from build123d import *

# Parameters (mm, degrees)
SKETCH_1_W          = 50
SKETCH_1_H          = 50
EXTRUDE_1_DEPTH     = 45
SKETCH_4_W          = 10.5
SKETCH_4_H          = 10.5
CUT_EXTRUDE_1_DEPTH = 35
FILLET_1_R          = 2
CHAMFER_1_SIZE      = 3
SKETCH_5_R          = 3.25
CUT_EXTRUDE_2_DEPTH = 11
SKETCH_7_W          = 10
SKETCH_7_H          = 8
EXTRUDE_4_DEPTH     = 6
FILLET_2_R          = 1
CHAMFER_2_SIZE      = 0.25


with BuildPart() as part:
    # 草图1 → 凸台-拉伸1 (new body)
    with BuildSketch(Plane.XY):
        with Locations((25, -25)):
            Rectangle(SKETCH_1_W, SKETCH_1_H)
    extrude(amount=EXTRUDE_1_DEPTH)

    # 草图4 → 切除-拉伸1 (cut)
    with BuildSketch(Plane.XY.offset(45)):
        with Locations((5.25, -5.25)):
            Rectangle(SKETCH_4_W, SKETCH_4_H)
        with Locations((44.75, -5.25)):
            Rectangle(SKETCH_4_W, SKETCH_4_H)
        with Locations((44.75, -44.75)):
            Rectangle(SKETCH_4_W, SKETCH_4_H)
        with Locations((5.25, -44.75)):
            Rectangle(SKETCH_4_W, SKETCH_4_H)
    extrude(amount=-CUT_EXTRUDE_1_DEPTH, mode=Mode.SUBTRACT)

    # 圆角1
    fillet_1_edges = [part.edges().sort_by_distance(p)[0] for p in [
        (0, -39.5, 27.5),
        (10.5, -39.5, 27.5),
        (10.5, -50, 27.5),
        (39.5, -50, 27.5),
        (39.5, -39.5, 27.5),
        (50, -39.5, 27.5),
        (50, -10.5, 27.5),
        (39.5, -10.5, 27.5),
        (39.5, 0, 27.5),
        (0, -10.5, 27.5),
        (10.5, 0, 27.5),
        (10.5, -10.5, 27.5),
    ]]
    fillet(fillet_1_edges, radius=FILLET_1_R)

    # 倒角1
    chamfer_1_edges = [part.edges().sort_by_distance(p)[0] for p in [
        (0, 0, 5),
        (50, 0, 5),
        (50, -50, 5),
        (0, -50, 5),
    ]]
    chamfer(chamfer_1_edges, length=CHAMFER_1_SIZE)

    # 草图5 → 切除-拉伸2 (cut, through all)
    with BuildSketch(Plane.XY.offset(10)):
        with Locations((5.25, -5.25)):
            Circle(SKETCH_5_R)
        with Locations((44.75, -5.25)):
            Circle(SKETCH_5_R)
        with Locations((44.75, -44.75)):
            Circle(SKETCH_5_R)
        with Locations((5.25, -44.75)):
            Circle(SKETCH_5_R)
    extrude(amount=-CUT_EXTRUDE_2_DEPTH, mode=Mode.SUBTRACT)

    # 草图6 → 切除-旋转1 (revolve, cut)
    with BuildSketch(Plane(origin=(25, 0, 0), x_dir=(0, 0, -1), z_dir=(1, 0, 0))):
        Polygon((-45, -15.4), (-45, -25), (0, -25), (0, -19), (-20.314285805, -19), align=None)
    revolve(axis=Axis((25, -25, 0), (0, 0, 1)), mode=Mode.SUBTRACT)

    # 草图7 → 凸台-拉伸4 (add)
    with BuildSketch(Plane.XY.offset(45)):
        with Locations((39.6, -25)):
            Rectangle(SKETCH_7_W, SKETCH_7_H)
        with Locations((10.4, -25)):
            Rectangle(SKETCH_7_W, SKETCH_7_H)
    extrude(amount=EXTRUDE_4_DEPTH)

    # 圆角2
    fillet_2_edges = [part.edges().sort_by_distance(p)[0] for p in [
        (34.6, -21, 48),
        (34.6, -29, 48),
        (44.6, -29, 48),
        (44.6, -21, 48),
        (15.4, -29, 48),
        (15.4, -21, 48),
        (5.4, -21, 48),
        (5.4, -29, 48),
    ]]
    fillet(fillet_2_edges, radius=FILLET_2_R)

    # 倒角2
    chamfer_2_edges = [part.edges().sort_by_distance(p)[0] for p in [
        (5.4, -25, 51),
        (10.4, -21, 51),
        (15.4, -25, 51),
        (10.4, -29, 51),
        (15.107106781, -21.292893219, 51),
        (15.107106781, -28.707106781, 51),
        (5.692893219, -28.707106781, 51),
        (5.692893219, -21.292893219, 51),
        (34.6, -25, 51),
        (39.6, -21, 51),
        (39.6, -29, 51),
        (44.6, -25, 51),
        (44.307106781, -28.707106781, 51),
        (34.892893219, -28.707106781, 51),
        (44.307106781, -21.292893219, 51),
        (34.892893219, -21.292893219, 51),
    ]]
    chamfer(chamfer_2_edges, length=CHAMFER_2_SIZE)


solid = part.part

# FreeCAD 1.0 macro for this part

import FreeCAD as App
import Part
import Sketcher
from FreeCAD import Vector


def edges_at(feature, points):
    """Names of the edges that pass closest to the given points."""
    edges = feature.Shape.Edges
    near = lambda p: min(range(len(edges)), key=lambda i: edges[i].distToShape(Part.Vertex(*p))[0])
    return sorted({f"Edge{near(p) + 1}" for p in points})


def add_polygon(sketch, points):
    """Adds a closed chain of lines whose ends are joined by coincident constraints."""
    first, n = sketch.GeometryCount, len(points)
    for a, b in zip(points, points[1:] + points[:1]):
        sketch.addGeometry(Part.LineSegment(App.Vector(*a, 0), App.Vector(*b, 0)), False)
    for i in range(n):
        sketch.addConstraint(Sketcher.Constraint("Coincident", first + i, 2, first + (i + 1) % n, 1))

doc = App.newDocument("Part")
body = doc.addObject("PartDesign::Body", "Body")

# Sketch on XY plane
sketch1 = doc.addObject("Sketcher::SketchObject", "Sketch")
body.addObject(sketch1)
sketch1.AttachmentSupport = (doc.XY_Plane, [""])
sketch1.MapMode = "FlatFace"
add_polygon(sketch1, [(0, 0), (0, -50), (50, -50), (50, 0)])  # lines 0-3
sketch1.addConstraint([
    Sketcher.Constraint("Vertical", 0),
    Sketcher.Constraint("Horizontal", 1),
    Sketcher.Constraint("Vertical", 2),
    Sketcher.Constraint("Horizontal", 3),
    Sketcher.Constraint("Coincident", 3, 2, -1, 1),
    Sketcher.Constraint("Equal", 3, 0),
    Sketcher.Constraint("DistanceX", 1, 1, 1, 2, 50.0),
])
pad1 = doc.addObject("PartDesign::Pad", "Pad")
body.addObject(pad1)
pad1.Profile = sketch1
pad1.Length = 45

# Sketch on XY plane
sketch2 = doc.addObject("Sketcher::SketchObject", "Sketch001")
body.addObject(sketch2)
sketch2.AttachmentSupport = (doc.XY_Plane, [""])
sketch2.MapMode = "FlatFace"
sketch2.AttachmentOffset = App.Placement(Vector(0, 0, 45), App.Rotation())
add_polygon(sketch2, [(0, 0), (0, -10), (10, -10), (10, 0)])  # lines 0-3
add_polygon(sketch2, [(40, 0), (40, -10), (50, -10), (50, 0)])  # lines 4-7
add_polygon(sketch2, [(40, -40), (40, -50), (50, -50), (50, -40)])  # lines 8-11
add_polygon(sketch2, [(0, -40), (0, -50), (10, -50), (10, -40)])  # lines 12-15
sketch2.addConstraint([
    Sketcher.Constraint("Vertical", 0),
    Sketcher.Constraint("Horizontal", 1),
    Sketcher.Constraint("Vertical", 2),
    Sketcher.Constraint("Horizontal", 3),
    Sketcher.Constraint("Vertical", 4),
    Sketcher.Constraint("Horizontal", 5),
    Sketcher.Constraint("Vertical", 6),
    Sketcher.Constraint("Horizontal", 7),
    Sketcher.Constraint("Vertical", 8),
    Sketcher.Constraint("Horizontal", 9),
    Sketcher.Constraint("Vertical", 10),
    Sketcher.Constraint("Horizontal", 11),
    Sketcher.Constraint("Vertical", 12),
    Sketcher.Constraint("Horizontal", 13),
    Sketcher.Constraint("Vertical", 14),
    Sketcher.Constraint("Horizontal", 15),
    Sketcher.Constraint("Coincident", 3, 2, -1, 1),
    Sketcher.Constraint("PointOnObject", 6, 2, -1),
    Sketcher.Constraint("PointOnObject", 12, 2, -2),
    Sketcher.Constraint("Horizontal", 1, 2, 4, 2),
    Sketcher.Constraint("Horizontal", 9, 2, 12, 2),
    Sketcher.Constraint("Horizontal", 11, 2, 14, 2),
    Sketcher.Constraint("Vertical", 7, 2, 8, 2),
    Sketcher.Constraint("Vertical", 6, 2, 9, 2),
    Sketcher.Constraint("Vertical", 2, 2, 13, 2),
    Sketcher.Constraint("Equal", 3, 5),
    Sketcher.Constraint("Equal", 15, 0),
    Sketcher.Constraint("Equal", 6, 8),
    Sketcher.Constraint("DistanceX", 1, 1, 1, 2, 10.5),
    Sketcher.Constraint("DistanceX", -1, 1, 5, 2, 50.0),
    Sketcher.Constraint("DistanceY", 8, 2, -1, 1, 50.0),
])
pocket1 = doc.addObject("PartDesign::Pocket", "Pocket")
body.addObject(pocket1)
pocket1.Profile = sketch2
pocket1.Length = 35
doc.recompute()

fillet = doc.addObject("PartDesign::Fillet", "Fillet")
body.addObject(fillet)
fillet.Base = (pocket1, edges_at(pocket1, [
    (0, -39.5, 27.5),
    (10.5, -39.5, 27.5),
    (10.5, -50, 27.5),
    (39.5, -50, 27.5),
    (39.5, -39.5, 27.5),
    (50, -39.5, 27.5),
    (50, -10.5, 27.5),
    (39.5, -10.5, 27.5),
    (39.5, 0, 27.5),
    (0, -10.5, 27.5),
    (10.5, 0, 27.5),
    (10.5, -10.5, 27.5),
]))
fillet.Radius = 2
doc.recompute()

chamfer = doc.addObject("PartDesign::Chamfer", "Chamfer")
body.addObject(chamfer)
chamfer.Base = (fillet, edges_at(fillet, [
    (0, 0, 5),
    (50, 0, 5),
    (50, -50, 5),
    (0, -50, 5),
]))
chamfer.Size = 3

# Sketch on XY plane
sketch3 = doc.addObject("Sketcher::SketchObject", "Sketch002")
body.addObject(sketch3)
sketch3.AttachmentSupport = (doc.XY_Plane, [""])
sketch3.MapMode = "FlatFace"
sketch3.AttachmentOffset = App.Placement(Vector(0, 0, 10), App.Rotation())
sketch3.addGeometry([
    Part.Circle(Vector(5.2, -5.2, 0), Vector(0, 0, 1), 3.2),
    Part.Circle(Vector(44.8, -5.2, 0), Vector(0, 0, 1), 3.2),
    Part.Circle(Vector(44.8, -44.8, 0), Vector(0, 0, 1), 3.2),
    Part.Circle(Vector(5.2, -44.8, 0), Vector(0, 0, 1), 3.2),
], False)
sketch3.addConstraint([
    Sketcher.Constraint("Equal", 0, 1),
    Sketcher.Constraint("Equal", 1, 2),
    Sketcher.Constraint("Equal", 2, 3),
    Sketcher.Constraint("Horizontal", 0, 3, 1, 3),
    Sketcher.Constraint("Horizontal", 2, 3, 3, 3),
    Sketcher.Constraint("Vertical", 1, 3, 2, 3),
    Sketcher.Constraint("Vertical", 0, 3, 3, 3),
    Sketcher.Constraint("Diameter", 0, 6.5),
    Sketcher.Constraint("DistanceX", 0, 3, 1, 3, 39.5),
    Sketcher.Constraint("DistanceY", 2, 3, 1, 3, 39.5),
    Sketcher.Constraint("DistanceX", -1, 1, 0, 3, 5.25),
    Sketcher.Constraint("DistanceY", 0, 3, -1, 1, 5.25),
])
pocket2 = doc.addObject("PartDesign::Pocket", "Pocket001")
body.addObject(pocket2)
pocket2.Profile = sketch3
pocket2.Type = "ThroughAll"

# Sketch on YZ plane
sketch4 = doc.addObject("Sketcher::SketchObject", "Sketch003")
body.addObject(sketch4)
sketch4.AttachmentSupport = (doc.YZ_Plane, [""])
sketch4.MapMode = "FlatFace"
sketch4.AttachmentOffset = App.Placement(Vector(0, 0, 25), App.Rotation())
add_polygon(sketch4, [(-15, 45), (-25, 45), (-25, 0), (-19, 0), (-19, 20)])  # lines 0-4
sketch4.addGeometry(Part.LineSegment(Vector(-25, 0, 0), Vector(-25, 45, 0)), True)  # axis
sketch4.addConstraint([
    Sketcher.Constraint("Horizontal", 0),
    Sketcher.Constraint("Vertical", 1),
    Sketcher.Constraint("Horizontal", 2),
    Sketcher.Constraint("Vertical", 3),
    Sketcher.Constraint("Vertical", 5),
    Sketcher.Constraint("Coincident", 5, 1, 1, 2),
    Sketcher.Constraint("PointOnObject", 1, 2, -1),
    Sketcher.Constraint("Horizontal", 4, 2, 5, 2),
    Sketcher.Constraint("DistanceX", 2, 1, 2, 2, 6.0),
    Sketcher.Constraint("DistanceY", 1, 2, 1, 1, 45.0),
    Sketcher.Constraint("DistanceX", 0, 2, 0, 1, 9.6),
    Sketcher.Constraint("DistanceX", 0, 2, -1, 1, 25.0),
    Sketcher.Constraint("DistanceY", 3, 1, 3, 2, 20.314286),
])
groove = doc.addObject("PartDesign::Groove", "Groove")
body.addObject(groove)
groove.Profile = sketch4
groove.ReferenceAxis = (sketch4, ["Axis0"])
groove.Angle = 360

# Sketch on XY plane
sketch5 = doc.addObject("Sketcher::SketchObject", "Sketch004")
body.addObject(sketch5)
sketch5.AttachmentSupport = (doc.XY_Plane, [""])
sketch5.MapMode = "FlatFace"
sketch5.AttachmentOffset = App.Placement(Vector(0, 0, 45), App.Rotation())
add_polygon(sketch5, [(35, -21), (35, -29), (45, -29), (45, -21)])  # lines 0-3
add_polygon(sketch5, [(5, -21), (5, -29), (15, -29), (15, -21)])  # lines 4-7
sketch5.addConstraint([
    Sketcher.Constraint("Vertical", 0),
    Sketcher.Constraint("Horizontal", 1),
    Sketcher.Constraint("Vertical", 2),
    Sketcher.Constraint("Horizontal", 3),
    Sketcher.Constraint("Vertical", 4),
    Sketcher.Constraint("Horizontal", 5),
    Sketcher.Constraint("Vertical", 6),
    Sketcher.Constraint("Horizontal", 7),
    Sketcher.Constraint("Horizontal", 1, 2, 4, 2),
    Sketcher.Constraint("Horizontal", 3, 2, 6, 2),
    Sketcher.Constraint("Equal", 3, 5),
    Sketcher.Constraint("DistanceX", 1, 1, 1, 2, 10.0),
    Sketcher.Constraint("DistanceY", 0, 2, 0, 1, 8.0),
    Sketcher.Constraint("DistanceY", 0, 2, -1, 1, 29.0),
    Sketcher.Constraint("DistanceX", -1, 1, 0, 2, 34.6),
    Sketcher.Constraint("DistanceX", -1, 1, 4, 2, 5.4),
])
pad2 = doc.addObject("PartDesign::Pad", "Pad001")
body.addObject(pad2)
pad2.Profile = sketch5
pad2.Length = 6
doc.recompute()

fillet2 = doc.addObject("PartDesign::Fillet", "Fillet001")
body.addObject(fillet2)
fillet2.Base = (pad2, edges_at(pad2, [
    (34.6, -21, 48),
    (34.6, -29, 48),
    (44.6, -29, 48),
    (44.6, -21, 48),
    (15.4, -29, 48),
    (15.4, -21, 48),
    (5.4, -21, 48),
    (5.4, -29, 48),
]))
fillet2.Radius = 1
doc.recompute()

chamfer2 = doc.addObject("PartDesign::Chamfer", "Chamfer001")
body.addObject(chamfer2)
chamfer2.Base = (fillet2, edges_at(fillet2, [
    (5.4, -25, 51),
    (10.4, -21, 51),
    (15.4, -25, 51),
    (10.4, -29, 51),
    (15.107, -21.293, 51),
    (15.107, -28.707, 51),
    (5.693, -28.707, 51),
    (5.693, -21.293, 51),
    (34.6, -25, 51),
    (39.6, -21, 51),
    (39.6, -29, 51),
    (44.6, -25, 51),
    (44.307, -28.707, 51),
    (34.893, -28.707, 51),
    (44.307, -21.293, 51),
    (34.893, -21.293, 51),
]))
chamfer2.Size = 0.25

doc.recompute()
